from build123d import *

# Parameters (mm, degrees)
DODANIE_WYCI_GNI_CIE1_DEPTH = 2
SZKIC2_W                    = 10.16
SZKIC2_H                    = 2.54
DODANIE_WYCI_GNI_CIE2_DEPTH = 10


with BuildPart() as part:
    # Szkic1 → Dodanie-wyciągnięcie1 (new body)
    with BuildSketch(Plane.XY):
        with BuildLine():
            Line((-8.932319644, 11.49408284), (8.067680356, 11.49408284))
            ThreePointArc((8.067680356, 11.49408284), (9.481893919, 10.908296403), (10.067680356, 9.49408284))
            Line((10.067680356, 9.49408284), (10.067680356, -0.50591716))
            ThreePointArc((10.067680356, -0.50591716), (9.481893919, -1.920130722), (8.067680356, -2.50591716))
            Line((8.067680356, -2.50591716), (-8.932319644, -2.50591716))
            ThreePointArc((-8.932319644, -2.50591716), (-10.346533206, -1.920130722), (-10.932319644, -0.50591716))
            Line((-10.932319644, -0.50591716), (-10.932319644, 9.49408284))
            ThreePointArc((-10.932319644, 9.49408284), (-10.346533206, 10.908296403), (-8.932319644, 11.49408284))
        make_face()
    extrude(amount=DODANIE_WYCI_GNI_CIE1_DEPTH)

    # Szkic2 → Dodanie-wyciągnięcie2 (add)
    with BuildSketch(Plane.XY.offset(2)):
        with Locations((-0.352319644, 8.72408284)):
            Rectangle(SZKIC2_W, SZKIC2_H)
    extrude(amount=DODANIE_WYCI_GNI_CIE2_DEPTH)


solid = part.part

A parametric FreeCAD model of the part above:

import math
import FreeCAD as App
import Part
import Sketcher

V = App.Vector

doc = App.newDocument("Part")
body = doc.addObject("PartDesign::Body", "Body")

# Sketch on XY plane
sketch1 = body.newObject("Sketcher::SketchObject", "Sketch")
sketch1.AttachmentSupport = (doc.getObject("XY_Plane"), [""])
sketch1.MapMode = "FlatFace"
sketch1.addGeometry(Part.LineSegment(V(8.06768, 11.494083, 0), V(-8.93232, 11.494083, 0)), False)
sketch1.addGeometry(Part.ArcOfCircle(Part.Circle(V(-8.93232, 9.494083, 0), V(0, 0, 1), 2), math.radians(90), math.radians(180)), False)
sketch1.addGeometry(Part.LineSegment(V(-10.93232, 9.494083, 0), V(-10.93232, -0.505917, 0)), False)
sketch1.addGeometry(Part.ArcOfCircle(Part.Circle(V(-8.93232, -0.505917, 0), V(0, 0, 1), 2), math.radians(-180), math.radians(-90)), False)
sketch1.addGeometry(Part.LineSegment(V(-8.93232, -2.505917, 0), V(8.06768, -2.505917, 0)), False)
sketch1.addGeometry(Part.ArcOfCircle(Part.Circle(V(8.06768, -0.505917, 0), V(0, 0, 1), 2), math.radians(-90), math.radians(0)), False)
sketch1.addGeometry(Part.LineSegment(V(10.06768, -0.505917, 0), V(10.06768, 9.494083, 0)), False)
sketch1.addGeometry(Part.ArcOfCircle(Part.Circle(V(8.06768, 9.494083, 0), V(0, 0, 1), 2), math.radians(0), math.radians(90)), False)
sketch1.addConstraint(Sketcher.Constraint("Tangent", 0, 2, 1, 1))
sketch1.addConstraint(Sketcher.Constraint("Tangent", 1, 2, 2, 1))
sketch1.addConstraint(Sketcher.Constraint("Tangent", 2, 2, 3, 1))
sketch1.addConstraint(Sketcher.Constraint("Tangent", 3, 2, 4, 1))
sketch1.addConstraint(Sketcher.Constraint("Tangent", 4, 2, 5, 1))
sketch1.addConstraint(Sketcher.Constraint("Tangent", 5, 2, 6, 1))
sketch1.addConstraint(Sketcher.Constraint("Tangent", 6, 2, 7, 1))
sketch1.addConstraint(Sketcher.Constraint("Tangent", 7, 2, 0, 1))
sketch1.addConstraint(Sketcher.Constraint("Horizontal", 0))
sketch1.addConstraint(Sketcher.Constraint("Vertical", 2))
sketch1.addConstraint(Sketcher.Constraint("Horizontal", 4))
sketch1.addConstraint(Sketcher.Constraint("Vertical", 6))
sketch1.addConstraint(Sketcher.Constraint("Equal", 1, 3))
sketch1.addConstraint(Sketcher.Constraint("Equal", 3, 5))
sketch1.addConstraint(Sketcher.Constraint("Equal", 5, 7))
sketch1.addConstraint(Sketcher.Constraint("Radius", 1, 2.0))
sketch1.addConstraint(Sketcher.Constraint("DistanceX", 0, 2, 0, 1, 17.0))
sketch1.addConstraint(Sketcher.Constraint("DistanceY", 2, 2, 2, 1, 10.0))
sketch1.addConstraint(Sketcher.Constraint("DistanceX", 1, 3, -1, 1, 8.93232))
sketch1.addConstraint(Sketcher.Constraint("DistanceY", -1, 1, 1, 3, 9.494083))
pad1 = body.newObject("PartDesign::Pad", "Pad")
pad1.Profile = sketch1
pad1.Length = 2

# Sketch on XY plane
sketch2 = body.newObject("Sketcher::SketchObject", "Sketch001")
sketch2.AttachmentSupport = (doc.getObject("XY_Plane"), [""])
sketch2.MapMode = "FlatFace"
sketch2.AttachmentOffset = App.Placement(V(0, 0, 2), App.Rotation())
sketch2.addGeometry(Part.LineSegment(V(-5.43232, 9.994083, 0), V(-5.43232, 7.454083, 0)), False)
sketch2.addGeometry(Part.LineSegment(V(-5.43232, 7.454083, 0), V(4.72768, 7.454083, 0)), False)
sketch2.addGeometry(Part.LineSegment(V(4.72768, 7.454083, 0), V(4.72768, 9.994083, 0)), False)
sketch2.addGeometry(Part.LineSegment(V(4.72768, 9.994083, 0), V(-5.43232, 9.994083, 0)), False)
sketch2.addConstraint(Sketcher.Constraint("Coincident", 0, 2, 1, 1))
sketch2.addConstraint(Sketcher.Constraint("Coincident", 1, 2, 2, 1))
sketch2.addConstraint(Sketcher.Constraint("Coincident", 2, 2, 3, 1))
sketch2.addConstraint(Sketcher.Constraint("Coincident", 3, 2, 0, 1))
sketch2.addConstraint(Sketcher.Constraint("Vertical", 0))
sketch2.addConstraint(Sketcher.Constraint("Horizontal", 1))
sketch2.addConstraint(Sketcher.Constraint("Vertical", 2))
sketch2.addConstraint(Sketcher.Constraint("Horizontal", 3))
sketch2.addConstraint(Sketcher.Constraint("DistanceX", 1, 1, 1, 2, 10.16))
sketch2.addConstraint(Sketcher.Constraint("DistanceY", 0, 2, 0, 1, 2.54))
sketch2.addConstraint(Sketcher.Constraint("DistanceX", 0, 2, -1, 1, 5.43232))
sketch2.addConstraint(Sketcher.Constraint("DistanceY", -1, 1, 0, 2, 7.454083))
pad2 = body.newObject("PartDesign::Pad", "Pad001")
pad2.Profile = sketch2
pad2.Length = 10

doc.recompute()
